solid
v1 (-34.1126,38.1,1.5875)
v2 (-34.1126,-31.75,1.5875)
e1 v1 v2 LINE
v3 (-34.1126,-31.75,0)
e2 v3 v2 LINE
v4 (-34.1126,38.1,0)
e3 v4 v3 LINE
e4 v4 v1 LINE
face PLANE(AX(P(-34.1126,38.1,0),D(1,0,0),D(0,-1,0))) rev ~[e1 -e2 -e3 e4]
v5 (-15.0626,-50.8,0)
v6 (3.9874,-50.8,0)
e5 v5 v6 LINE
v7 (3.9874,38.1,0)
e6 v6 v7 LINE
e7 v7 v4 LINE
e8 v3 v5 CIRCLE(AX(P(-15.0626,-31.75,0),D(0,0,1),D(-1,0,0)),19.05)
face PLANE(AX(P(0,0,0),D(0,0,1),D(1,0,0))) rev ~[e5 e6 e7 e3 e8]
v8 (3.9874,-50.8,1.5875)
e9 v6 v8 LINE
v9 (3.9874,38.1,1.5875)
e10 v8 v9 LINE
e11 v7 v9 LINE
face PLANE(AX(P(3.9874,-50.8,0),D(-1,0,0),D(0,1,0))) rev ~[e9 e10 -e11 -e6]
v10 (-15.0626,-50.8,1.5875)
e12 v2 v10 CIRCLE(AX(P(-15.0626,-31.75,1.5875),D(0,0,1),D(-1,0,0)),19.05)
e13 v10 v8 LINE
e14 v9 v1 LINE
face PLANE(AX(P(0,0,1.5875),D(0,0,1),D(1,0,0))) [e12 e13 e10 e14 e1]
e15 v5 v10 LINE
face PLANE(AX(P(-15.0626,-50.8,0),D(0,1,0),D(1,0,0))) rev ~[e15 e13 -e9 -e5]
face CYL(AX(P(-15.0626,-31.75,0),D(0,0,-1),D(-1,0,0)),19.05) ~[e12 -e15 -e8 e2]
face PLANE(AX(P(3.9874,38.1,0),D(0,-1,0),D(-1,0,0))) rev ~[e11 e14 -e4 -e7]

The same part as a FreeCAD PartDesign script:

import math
import FreeCAD as App
import Part
import Sketcher
from FreeCAD import Vector
Q = App.Units.Quantity

doc = App.newDocument("Part")
body = doc.addObject("PartDesign::Body", "Body")

# Sketch on XY plane
sketch1 = body.newObject("Sketcher::SketchObject", "Sketch")
sketch1.AttachmentSupport = (doc.getObject("XY_Plane"), [""])
sketch1.MapMode = "FlatFace"
sketch1.addGeometry(Part.LineSegment(Vector(3.9874, -50.8, 0), Vector(3.9874, 38.1, 0)), False)
sketch1.addGeometry(Part.LineSegment(Vector(3.9874, 38.1, 0), Vector(-34.1126, 38.1, 0)), False)
sketch1.addGeometry(Part.LineSegment(Vector(-34.1126, 38.1, 0), Vector(-34.1126, -31.75, 0)), False)
sketch1.addGeometry(Part.ArcOfCircle(Part.Circle(Vector(-15.0626, -31.75, 0), Vector(0, 0, 1), 19.05), math.radians(180), math.radians(270)), False)
sketch1.addGeometry(Part.LineSegment(Vector(-15.0626, -50.8, 0), Vector(3.9874, -50.8, 0)), False)
sketch1.addConstraint(Sketcher.Constraint("Coincident", 0, 2, 1, 1))
sketch1.addConstraint(Sketcher.Constraint("Coincident", 1, 2, 2, 1))
sketch1.addConstraint(Sketcher.Constraint("Tangent", 2, 2, 3, 1))
sketch1.addConstraint(Sketcher.Constraint("Tangent", 3, 2, 4, 1))
sketch1.addConstraint(Sketcher.Constraint("Coincident", 4, 2, 0, 1))
sketch1.addConstraint(Sketcher.Constraint("Vertical", 0))
sketch1.addConstraint(Sketcher.Constraint("Horizontal", 1))
sketch1.addConstraint(Sketcher.Constraint("Vertical", 2))
sketch1.addConstraint(Sketcher.Constraint("Horizontal", 4))
sketch1.addConstraint(Sketcher.Constraint("Radius", 3, Q("0.75 in")))
sketch1.addConstraint(Sketcher.Constraint("DistanceX", 1, 2, 1, 1, Q("1.5 in")))
sketch1.addConstraint(Sketcher.Constraint("DistanceY", 0, 1, 0, 2, Q("3.5 in")))
sketch1.addConstraint(Sketcher.Constraint("DistanceY", -1, 1, 0, 2, Q("1.5 in")))
sketch1.addConstraint(Sketcher.Constraint("DistanceX", 3, 3, -1, 1, Q("15.0626 mm")))
pad1 = body.newObject("PartDesign::Pad", "Pad")
pad1.Profile = sketch1
pad1.Length = Q("0.0625 in")

doc.recompute()
